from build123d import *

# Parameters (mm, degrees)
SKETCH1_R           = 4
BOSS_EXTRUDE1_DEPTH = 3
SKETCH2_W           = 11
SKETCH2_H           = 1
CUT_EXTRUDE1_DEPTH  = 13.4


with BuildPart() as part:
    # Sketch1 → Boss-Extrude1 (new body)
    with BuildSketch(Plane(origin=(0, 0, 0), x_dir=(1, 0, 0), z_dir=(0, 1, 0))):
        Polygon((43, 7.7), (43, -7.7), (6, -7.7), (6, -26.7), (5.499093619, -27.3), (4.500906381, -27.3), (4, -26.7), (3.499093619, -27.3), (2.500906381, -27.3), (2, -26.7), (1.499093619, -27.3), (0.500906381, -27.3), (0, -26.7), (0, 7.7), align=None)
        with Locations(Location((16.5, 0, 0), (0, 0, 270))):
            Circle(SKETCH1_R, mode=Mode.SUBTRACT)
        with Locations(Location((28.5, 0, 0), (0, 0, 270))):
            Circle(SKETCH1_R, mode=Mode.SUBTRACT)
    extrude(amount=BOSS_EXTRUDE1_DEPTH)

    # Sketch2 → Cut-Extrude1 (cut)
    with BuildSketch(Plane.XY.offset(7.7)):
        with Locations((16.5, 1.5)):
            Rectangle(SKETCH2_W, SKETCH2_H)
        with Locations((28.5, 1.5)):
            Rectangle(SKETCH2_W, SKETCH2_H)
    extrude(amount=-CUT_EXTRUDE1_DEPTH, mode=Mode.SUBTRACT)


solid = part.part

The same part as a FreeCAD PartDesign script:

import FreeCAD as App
import Part
import Sketcher


def add_polygon(sketch, points):
    """Adds a closed chain of lines whose ends are joined by coincident constraints."""
    first, n = sketch.GeometryCount, len(points)
    for a, b in zip(points, points[1:] + points[:1]):
        sketch.addGeometry(Part.LineSegment(App.Vector(*a, 0), App.Vector(*b, 0)), False)
    for i in range(n):
        sketch.addConstraint(Sketcher.Constraint("Coincident", first + i, 2, first + (i + 1) % n, 1))

doc = App.newDocument("Part")
params = doc.addObject("Spreadsheet::Sheet", "Params")
for row, (alias, value) in enumerate([
    ("sketch1_diameter", "8 mm"),
    ("sketch1_width", "43 mm"),
    ("sketch1_width2", "37 mm"),
    ("sketch1_height", "19 mm"),
    ("sketch1_height2", "15.4 mm"),
    ("pad1_length", "3 mm"),
    ("sketch2_width", "11 mm"),
    ("sketch2_height", "1 mm"),
    ("pocket1_length", "13.4 mm"),
], start=1):
    params.set(f"A{row}", alias)
    params.set(f"B{row}", "=" + value)
    params.setAlias(f"B{row}", alias)

body = doc.addObject("PartDesign::Body", "Body")

sketch1 = doc.addObject("Sketcher::SketchObject", "Sketch")
body.addObject(sketch1)
sketch1.AttachmentSupport = (doc.XZ_Plane, [""])
sketch1.MapMode = "FlatFace"
add_polygon(sketch1, [(43, 7.7), (43, -7.7), (0, -7.7), (0, 26.7), (0.5, 27.3), (1.5, 27.3), (2, 26.7), (2.5, 27.3), (3.5, 27.3), (4, 26.7), (4.5, 27.3), (5.5, 27.3), (6, 26.7), (6, 7.7)])
sketch1.addGeometry(Part.Circle(App.Vector(28.5, 0, 0), App.Vector(0, 0, 1), 4), False)
sketch1.addGeometry(Part.Circle(App.Vector(16.5, 0, 0), App.Vector(0, 0, 1), 4), False)
sketch1.addConstraint([
    Sketcher.Constraint("Vertical", 0),
    Sketcher.Constraint("Horizontal", 1),
    Sketcher.Constraint("Vertical", 2),
    Sketcher.Constraint("Horizontal", 4),
    Sketcher.Constraint("Horizontal", 7),
    Sketcher.Constraint("Horizontal", 10),
    Sketcher.Constraint("Vertical", 12),
    Sketcher.Constraint("Horizontal", 13),
    Sketcher.Constraint("Equal", 14, 15),
    Sketcher.Constraint("PointOnObject", 14, 3, -1),
    Sketcher.Constraint("PointOnObject", 15, 3, -1),
    Sketcher.Constraint("PointOnObject", 1, 2, -2),
    Sketcher.Constraint("Parallel", 3, 6),
    Sketcher.Constraint("Parallel", 5, 8),
    Sketcher.Constraint("Parallel", 6, 9),
    Sketcher.Constraint("Parallel", 8, 11),
    Sketcher.Constraint("Horizontal", 2, 2, 5, 2),
    Sketcher.Constraint("Horizontal", 4, 2, 6, 2),
    Sketcher.Constraint("Horizontal", 5, 2, 8, 2),
    Sketcher.Constraint("Horizontal", 7, 2, 9, 2),
    Sketcher.Constraint("Horizontal", 8, 2, 11, 2),
    Sketcher.Constraint("Equal", 4, 7),
    Sketcher.Constraint("Equal", 7, 10),
    Sketcher.Constraint("Equal", 3, 5),
    Sketcher.Constraint("Diameter", 14, 8.0),
    Sketcher.Constraint("DistanceX", 1, 2, 1, 1, 43.0),
    Sketcher.Constraint("DistanceX", 13, 1, 13, 2, 37.0),
    Sketcher.Constraint("DistanceY", 12, 2, 12, 1, 19.0),
    Sketcher.Constraint("DistanceY", 0, 2, 0, 1, 15.4),
    Sketcher.Constraint("DistanceX", 15, 3, 14, 3, 12.0),
    Sketcher.Constraint("DistanceY", 1, 2, 3, 2, 35.0),
    Sketcher.Constraint("DistanceX", -1, 1, 14, 3, 28.5),
    Sketcher.Constraint("DistanceY", 0, 2, -1, 1, 7.7),
    Sketcher.Constraint("DistanceX", 4, 1, 4, 2, 0.998187),
])
sketch1.setExpression("Constraints[38]", "Params.sketch1_diameter")
sketch1.setExpression("Constraints[39]", "Params.sketch1_width")
sketch1.setExpression("Constraints[40]", "Params.sketch1_width2")
sketch1.setExpression("Constraints[41]", "Params.sketch1_height")
sketch1.setExpression("Constraints[42]", "Params.sketch1_height2")
pad1 = doc.addObject("PartDesign::Pad", "Pad")
body.addObject(pad1)
pad1.Profile = sketch1
pad1.setExpression("Length", "Params.pad1_length")
pad1.Reversed = True

sketch2 = doc.addObject("Sketcher::SketchObject", "Sketch001")
body.addObject(sketch2)
sketch2.AttachmentSupport = (doc.XY_Plane, [""])
sketch2.MapMode = "FlatFace"
sketch2.AttachmentOffset = App.Placement(App.Vector(0, 0, 7.7), App.Rotation())
add_polygon(sketch2, [(11, 2), (11, 1), (22, 1), (22, 2)])
add_polygon(sketch2, [(23, 2), (23, 1), (34, 1), (34, 2)])
sketch2.addConstraint([
    Sketcher.Constraint("Vertical", 0),
    Sketcher.Constraint("Horizontal", 1),
    Sketcher.Constraint("Vertical", 2),
    Sketcher.Constraint("Horizontal", 3),
    Sketcher.Constraint("Vertical", 4),
    Sketcher.Constraint("Horizontal", 5),
    Sketcher.Constraint("Vertical", 6),
    Sketcher.Constraint("Horizontal", 7),
    Sketcher.Constraint("Horizontal", 1, 2, 4, 2),
    Sketcher.Constraint("Horizontal", 3, 2, 6, 2),
    Sketcher.Constraint("Equal", 3, 5),
    Sketcher.Constraint("DistanceX", 1, 1, 1, 2, 11.0),
    Sketcher.Constraint("DistanceY", 0, 2, 0, 1, 1.0),
    Sketcher.Constraint("DistanceX", -1, 1, 0, 2, 11.0),
    Sketcher.Constraint("DistanceY", -1, 1, 0, 2, 1.0),
    Sketcher.Constraint("DistanceX", -1, 1, 4, 2, 23.0),
])
sketch2.setExpression("Constraints[19]", "Params.sketch2_width")
sketch2.setExpression("Constraints[20]", "Params.sketch2_height")
pocket1 = doc.addObject("PartDesign::Pocket", "Pocket")
body.addObject(pocket1)
pocket1.Profile = sketch2
pocket1.setExpression("Length", "Params.pocket1_length")

doc.recompute()
